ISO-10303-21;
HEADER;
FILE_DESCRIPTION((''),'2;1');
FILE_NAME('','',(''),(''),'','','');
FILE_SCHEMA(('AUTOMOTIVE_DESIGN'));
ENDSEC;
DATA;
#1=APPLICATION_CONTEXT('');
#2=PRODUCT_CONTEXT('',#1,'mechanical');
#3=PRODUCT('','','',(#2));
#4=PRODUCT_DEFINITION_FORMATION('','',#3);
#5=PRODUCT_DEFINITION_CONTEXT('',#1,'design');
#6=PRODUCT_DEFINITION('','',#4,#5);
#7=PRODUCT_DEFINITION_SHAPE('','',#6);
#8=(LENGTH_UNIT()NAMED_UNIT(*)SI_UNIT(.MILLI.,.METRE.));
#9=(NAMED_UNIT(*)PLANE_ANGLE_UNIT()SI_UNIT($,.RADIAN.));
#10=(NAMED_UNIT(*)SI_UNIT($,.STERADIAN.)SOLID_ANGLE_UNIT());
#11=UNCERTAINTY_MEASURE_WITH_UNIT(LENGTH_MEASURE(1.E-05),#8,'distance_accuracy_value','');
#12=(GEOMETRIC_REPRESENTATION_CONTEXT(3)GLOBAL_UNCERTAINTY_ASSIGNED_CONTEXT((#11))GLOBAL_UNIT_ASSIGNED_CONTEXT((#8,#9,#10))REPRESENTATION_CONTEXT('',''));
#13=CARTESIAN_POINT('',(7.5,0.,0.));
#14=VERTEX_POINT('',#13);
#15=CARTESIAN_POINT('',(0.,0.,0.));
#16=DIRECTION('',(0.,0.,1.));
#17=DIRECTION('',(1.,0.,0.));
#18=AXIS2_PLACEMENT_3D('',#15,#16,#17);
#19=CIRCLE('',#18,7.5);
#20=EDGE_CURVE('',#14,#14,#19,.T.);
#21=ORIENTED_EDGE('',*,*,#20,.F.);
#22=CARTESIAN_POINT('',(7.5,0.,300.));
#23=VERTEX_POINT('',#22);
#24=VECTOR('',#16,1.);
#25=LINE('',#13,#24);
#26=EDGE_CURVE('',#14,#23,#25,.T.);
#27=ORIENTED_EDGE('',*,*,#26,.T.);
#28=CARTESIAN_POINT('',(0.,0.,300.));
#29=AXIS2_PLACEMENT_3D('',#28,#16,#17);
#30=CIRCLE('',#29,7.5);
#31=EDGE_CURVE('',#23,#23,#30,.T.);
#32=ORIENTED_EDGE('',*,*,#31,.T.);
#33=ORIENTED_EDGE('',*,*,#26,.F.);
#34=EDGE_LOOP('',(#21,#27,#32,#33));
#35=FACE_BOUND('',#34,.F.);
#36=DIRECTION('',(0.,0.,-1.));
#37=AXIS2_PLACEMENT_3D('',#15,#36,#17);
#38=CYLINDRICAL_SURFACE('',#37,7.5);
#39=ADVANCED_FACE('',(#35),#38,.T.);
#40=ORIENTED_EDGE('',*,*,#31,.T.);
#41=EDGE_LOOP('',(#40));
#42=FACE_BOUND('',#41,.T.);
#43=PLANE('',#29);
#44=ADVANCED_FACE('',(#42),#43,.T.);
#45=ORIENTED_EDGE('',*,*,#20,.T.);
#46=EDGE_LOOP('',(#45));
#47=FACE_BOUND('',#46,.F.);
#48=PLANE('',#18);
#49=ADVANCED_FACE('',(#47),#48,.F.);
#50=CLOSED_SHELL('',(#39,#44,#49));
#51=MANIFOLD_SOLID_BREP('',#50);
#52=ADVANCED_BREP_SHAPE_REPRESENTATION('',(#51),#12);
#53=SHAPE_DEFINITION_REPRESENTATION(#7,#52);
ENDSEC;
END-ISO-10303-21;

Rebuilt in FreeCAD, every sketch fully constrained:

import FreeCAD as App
import Part
import Sketcher

doc = App.newDocument("Part")
body = doc.addObject("PartDesign::Body", "Body")

# Sketch on XY plane
sketch1 = body.newObject("Sketcher::SketchObject", "Sketch")
sketch1.AttachmentSupport = (doc.getObject("XY_Plane"), [""])
sketch1.MapMode = "FlatFace"
sketch1.addGeometry(Part.Circle(App.Vector(0, 0, 0), App.Vector(0, 0, 1), 8), False)
sketch1.addConstraint([
    Sketcher.Constraint("Coincident", 0, 3, -1, 1),
    Sketcher.Constraint("Diameter", 0, 15.0),
])
pad1 = body.newObject("PartDesign::Pad", "Pad")
pad1.Profile = sketch1
pad1.Length = 300

doc.recompute()
